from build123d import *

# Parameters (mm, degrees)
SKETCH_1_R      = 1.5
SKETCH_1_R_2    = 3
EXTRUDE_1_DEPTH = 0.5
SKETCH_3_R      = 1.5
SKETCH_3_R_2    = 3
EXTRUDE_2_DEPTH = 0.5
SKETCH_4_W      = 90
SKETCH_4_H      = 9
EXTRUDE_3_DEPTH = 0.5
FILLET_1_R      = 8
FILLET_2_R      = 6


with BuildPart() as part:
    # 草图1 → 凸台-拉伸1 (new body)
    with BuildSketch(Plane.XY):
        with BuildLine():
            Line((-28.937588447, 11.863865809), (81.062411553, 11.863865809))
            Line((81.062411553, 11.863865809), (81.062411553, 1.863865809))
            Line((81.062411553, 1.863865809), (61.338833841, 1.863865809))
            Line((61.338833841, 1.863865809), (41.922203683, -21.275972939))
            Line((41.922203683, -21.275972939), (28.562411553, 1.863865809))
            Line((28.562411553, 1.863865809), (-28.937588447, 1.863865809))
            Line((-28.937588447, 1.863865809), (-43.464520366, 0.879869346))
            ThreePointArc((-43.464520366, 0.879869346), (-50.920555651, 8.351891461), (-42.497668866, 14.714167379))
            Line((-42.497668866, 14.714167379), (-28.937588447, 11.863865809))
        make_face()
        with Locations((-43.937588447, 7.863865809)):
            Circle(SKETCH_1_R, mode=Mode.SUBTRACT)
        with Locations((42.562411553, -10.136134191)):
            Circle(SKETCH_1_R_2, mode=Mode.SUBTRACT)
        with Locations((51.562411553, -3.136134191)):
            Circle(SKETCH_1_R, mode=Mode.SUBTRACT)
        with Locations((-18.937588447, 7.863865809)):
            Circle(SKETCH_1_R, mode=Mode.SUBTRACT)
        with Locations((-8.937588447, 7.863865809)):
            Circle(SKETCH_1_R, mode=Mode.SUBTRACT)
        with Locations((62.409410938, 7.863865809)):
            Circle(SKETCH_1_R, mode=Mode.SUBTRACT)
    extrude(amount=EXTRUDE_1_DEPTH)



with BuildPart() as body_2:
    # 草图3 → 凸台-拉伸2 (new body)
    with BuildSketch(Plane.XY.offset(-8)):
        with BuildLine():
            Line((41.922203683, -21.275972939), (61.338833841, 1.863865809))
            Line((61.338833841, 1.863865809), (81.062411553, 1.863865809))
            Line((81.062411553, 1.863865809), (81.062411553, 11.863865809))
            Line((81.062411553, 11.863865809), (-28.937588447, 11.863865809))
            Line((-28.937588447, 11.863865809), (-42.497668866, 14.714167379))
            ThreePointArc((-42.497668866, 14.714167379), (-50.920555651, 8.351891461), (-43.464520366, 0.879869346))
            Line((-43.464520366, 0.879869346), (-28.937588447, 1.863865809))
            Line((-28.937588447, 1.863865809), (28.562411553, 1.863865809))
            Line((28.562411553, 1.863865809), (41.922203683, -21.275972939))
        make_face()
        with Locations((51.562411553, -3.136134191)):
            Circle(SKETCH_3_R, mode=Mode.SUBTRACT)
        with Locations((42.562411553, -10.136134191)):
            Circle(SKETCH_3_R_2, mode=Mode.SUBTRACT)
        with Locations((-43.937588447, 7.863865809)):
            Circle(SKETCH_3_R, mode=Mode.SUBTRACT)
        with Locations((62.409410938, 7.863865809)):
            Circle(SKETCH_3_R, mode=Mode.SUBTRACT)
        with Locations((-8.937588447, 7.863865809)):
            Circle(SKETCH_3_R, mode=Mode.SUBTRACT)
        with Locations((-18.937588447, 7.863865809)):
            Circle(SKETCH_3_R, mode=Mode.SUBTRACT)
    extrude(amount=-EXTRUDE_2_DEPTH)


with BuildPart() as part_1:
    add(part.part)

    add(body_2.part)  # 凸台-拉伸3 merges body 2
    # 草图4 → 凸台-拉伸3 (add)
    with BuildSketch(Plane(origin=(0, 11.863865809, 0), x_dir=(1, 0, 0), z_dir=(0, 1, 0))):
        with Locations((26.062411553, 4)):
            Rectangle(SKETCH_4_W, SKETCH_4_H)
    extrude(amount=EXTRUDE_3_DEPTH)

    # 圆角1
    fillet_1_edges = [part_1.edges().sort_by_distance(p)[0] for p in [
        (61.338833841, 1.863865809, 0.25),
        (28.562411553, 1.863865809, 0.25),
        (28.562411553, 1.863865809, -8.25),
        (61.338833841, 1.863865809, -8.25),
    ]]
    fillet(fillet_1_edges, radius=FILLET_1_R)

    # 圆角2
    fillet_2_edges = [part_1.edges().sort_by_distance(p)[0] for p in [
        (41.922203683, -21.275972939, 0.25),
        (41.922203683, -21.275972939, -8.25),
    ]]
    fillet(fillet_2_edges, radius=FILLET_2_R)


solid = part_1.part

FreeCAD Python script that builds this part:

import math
import FreeCAD as App
import Part
import Sketcher

V = App.Vector
Q = App.Units.Quantity


def edges_at(feature, points):
    """Names of the edges that pass closest to the given points."""
    edges = feature.Shape.Edges
    near = lambda p: min(range(len(edges)), key=lambda i: edges[i].distToShape(Part.Vertex(*p))[0])
    return sorted({f"Edge{near(p) + 1}" for p in points})

doc = App.newDocument("Part")
body = doc.addObject("PartDesign::Body", "Body")

sketch1 = body.newObject("Sketcher::SketchObject", "Sketch")
sketch1.AttachmentSupport = (doc.getObject("XY_Plane"), [""])
sketch1.MapMode = "FlatFace"
sketch1.addGeometry(Part.LineSegment(V(81.062412, 11.863866, 0), V(-28.937588, 11.863866, 0)), False)
sketch1.addGeometry(Part.LineSegment(V(-28.937588, 11.863866, 0), V(-42.497669, 14.714167, 0)), False)
sketch1.addGeometry(Part.ArcOfCircle(Part.Circle(V(-43.937588, 7.863866, 0), V(0, 0, 1), 7), math.radians(78.129357), math.radians(273.875068)), False)
sketch1.addGeometry(Part.LineSegment(V(-43.46452, 0.879869, 0), V(-28.937588, 1.863866, 0)), False)
sketch1.addGeometry(Part.LineSegment(V(-28.937588, 1.863866, 0), V(28.562412, 1.863866, 0)), False)
sketch1.addGeometry(Part.LineSegment(V(28.562412, 1.863866, 0), V(41.922204, -21.275973, 0)), False)
sketch1.addGeometry(Part.LineSegment(V(41.922204, -21.275973, 0), V(61.338834, 1.863866, 0)), False)
sketch1.addGeometry(Part.LineSegment(V(61.338834, 1.863866, 0), V(81.062412, 1.863866, 0)), False)
sketch1.addGeometry(Part.LineSegment(V(81.062412, 1.863866, 0), V(81.062412, 11.863866, 0)), False)
sketch1.addGeometry(Part.Circle(V(42.562412, -10.136134, 0), V(0, 0, 1), 3), False)
sketch1.addGeometry(Part.Circle(V(51.562412, -3.136134, 0), V(0, 0, 1), 1.5), False)
sketch1.addGeometry(Part.Circle(V(62.409411, 7.863866, 0), V(0, 0, 1), 1.5), False)
sketch1.addGeometry(Part.Circle(V(-8.937588, 7.863866, 0), V(0, 0, 1), 1.5), False)
sketch1.addGeometry(Part.Circle(V(-18.937588, 7.863866, 0), V(0, 0, 1), 1.5), False)
sketch1.addGeometry(Part.Circle(V(-43.937588, 7.863866, 0), V(0, 0, 1), 1.5), False)
sketch1.addConstraint(Sketcher.Constraint("Coincident", 0, 2, 1, 1))
sketch1.addConstraint(Sketcher.Constraint("Tangent", 1, 2, 2, 1))
sketch1.addConstraint(Sketcher.Constraint("Tangent", 2, 2, 3, 1))
sketch1.addConstraint(Sketcher.Constraint("Coincident", 3, 2, 4, 1))
sketch1.addConstraint(Sketcher.Constraint("Coincident", 4, 2, 5, 1))
sketch1.addConstraint(Sketcher.Constraint("Coincident", 5, 2, 6, 1))
sketch1.addConstraint(Sketcher.Constraint("Coincident", 6, 2, 7, 1))
sketch1.addConstraint(Sketcher.Constraint("Coincident", 7, 2, 8, 1))
sketch1.addConstraint(Sketcher.Constraint("Coincident", 8, 2, 0, 1))
sketch1.addConstraint(Sketcher.Constraint("Horizontal", 0))
sketch1.addConstraint(Sketcher.Constraint("Horizontal", 4))
sketch1.addConstraint(Sketcher.Constraint("Horizontal", 7))
sketch1.addConstraint(Sketcher.Constraint("Vertical", 8))
sketch1.addConstraint(Sketcher.Constraint("Coincident", 14, 3, 2, 3))
sketch1.addConstraint(Sketcher.Constraint("Equal", 10, 11))
sketch1.addConstraint(Sketcher.Constraint("Equal", 11, 12))
sketch1.addConstraint(Sketcher.Constraint("Equal", 12, 13))
sketch1.addConstraint(Sketcher.Constraint("Equal", 13, 14))
sketch1.addConstraint(Sketcher.Constraint("Horizontal", 2, 3, 11, 3))
sketch1.addConstraint(Sketcher.Constraint("Horizontal", 11, 3, 12, 3))
sketch1.addConstraint(Sketcher.Constraint("Horizontal", 12, 3, 13, 3))
sketch1.addConstraint(Sketcher.Constraint("Horizontal", 4, 2, 6, 2))
sketch1.addConstraint(Sketcher.Constraint("Vertical", 0, 2, 3, 2))
sketch1.addConstraint(Sketcher.Constraint("Diameter", 9, 6.0))
sketch1.addConstraint(Sketcher.Constraint("Diameter", 10, 3.0))
sketch1.addConstraint(Sketcher.Constraint("Radius", 2, 7.0))
sketch1.addConstraint(Sketcher.Constraint("DistanceX", 0, 2, 0, 1, 110.0))
sketch1.addConstraint(Sketcher.Constraint("DistanceY", 8, 1, 8, 2, 10.0))
sketch1.addConstraint(Sketcher.Constraint("Angle", 5, Q("-60 deg")))
sketch1.addConstraint(Sketcher.Constraint("Angle", 6, Q("50 deg")))
sketch1.addConstraint(Sketcher.Constraint("DistanceX", 4, 1, 4, 2, 57.5))
sketch1.addConstraint(Sketcher.Constraint("DistanceY", 9, 3, 2, 3, 18.0))
sketch1.addConstraint(Sketcher.Constraint("DistanceX", 9, 3, 10, 3, 9.0))
sketch1.addConstraint(Sketcher.Constraint("DistanceY", 9, 3, 10, 3, 7.0))
sketch1.addConstraint(Sketcher.Constraint("DistanceX", 2, 3, 12, 3, 35.0))
sketch1.addConstraint(Sketcher.Constraint("DistanceX", 13, 3, 12, 3, 10.0))
sketch1.addConstraint(Sketcher.Constraint("DistanceX", 0, 2, 13, 3, 10.0))
sketch1.addConstraint(Sketcher.Constraint("DistanceY", 13, 3, 0, 2, 4.0))
sketch1.addConstraint(Sketcher.Constraint("DistanceX", 4, 2, 9, 3, 14.0))
sketch1.addConstraint(Sketcher.Constraint("DistanceX", 10, 3, 11, 3, 10.846999))
sketch1.addConstraint(Sketcher.Constraint("DistanceX", 7, 1, 7, 2, 19.723578))
sketch1.addConstraint(Sketcher.Constraint("DistanceX", 2, 3, -1, 1, 43.937588))
sketch1.addConstraint(Sketcher.Constraint("DistanceY", -1, 1, 2, 2, 0.879869))
pad1 = body.newObject("PartDesign::Pad", "Pad")
pad1.Profile = sketch1
pad1.Length = 0.5
body2 = doc.addObject("PartDesign::Body", "Body001")

sketch2 = body2.newObject("Sketcher::SketchObject", "Sketch001")
sketch2.AttachmentSupport = (doc.getObject("XY_Plane001"), [""])
sketch2.MapMode = "FlatFace"
sketch2.AttachmentOffset = App.Placement(V(0, 0, -8), App.Rotation())
sketch2.addGeometry(Part.LineSegment(V(41.922204, -21.275973, 0), V(61.338834, 1.863866, 0)), False)
sketch2.addGeometry(Part.LineSegment(V(61.338834, 1.863866, 0), V(81.062412, 1.863866, 0)), False)
sketch2.addGeometry(Part.LineSegment(V(81.062412, 1.863866, 0), V(81.062412, 11.863866, 0)), False)
sketch2.addGeometry(Part.LineSegment(V(81.062412, 11.863866, 0), V(-28.937588, 11.863866, 0)), False)
sketch2.addGeometry(Part.LineSegment(V(-28.937588, 11.863866, 0), V(-42.497669, 14.714167, 0)), False)
sketch2.addGeometry(Part.ArcOfCircle(Part.Circle(V(-43.937588, 7.863866, 0), V(0, 0, 1), 7), math.radians(78.129357), math.radians(273.875068)), False)
sketch2.addGeometry(Part.LineSegment(V(-43.46452, 0.879869, 0), V(-28.937588, 1.863866, 0)), False)
sketch2.addGeometry(Part.LineSegment(V(-28.937588, 1.863866, 0), V(28.562412, 1.863866, 0)), False)
sketch2.addGeometry(Part.LineSegment(V(28.562412, 1.863866, 0), V(41.922204, -21.275973, 0)), False)
sketch2.addGeometry(Part.Circle(V(42.562412, -10.136134, 0), V(0, 0, 1), 3), False)
sketch2.addGeometry(Part.Circle(V(51.562412, -3.136134, 0), V(0, 0, 1), 1.5), False)
sketch2.addGeometry(Part.Circle(V(-43.937588, 7.863866, 0), V(0, 0, 1), 1.5), False)
sketch2.addGeometry(Part.Circle(V(-18.937588, 7.863866, 0), V(0, 0, 1), 1.5), False)
sketch2.addGeometry(Part.Circle(V(-8.937588, 7.863866, 0), V(0, 0, 1), 1.5), False)
sketch2.addGeometry(Part.Circle(V(62.409411, 7.863866, 0), V(0, 0, 1), 1.5), False)
sketch2.addConstraint(Sketcher.Constraint("Coincident", 0, 2, 1, 1))
sketch2.addConstraint(Sketcher.Constraint("Coincident", 1, 2, 2, 1))
sketch2.addConstraint(Sketcher.Constraint("Coincident", 2, 2, 3, 1))
sketch2.addConstraint(Sketcher.Constraint("Coincident", 3, 2, 4, 1))
sketch2.addConstraint(Sketcher.Constraint("Tangent", 4, 2, 5, 1))
sketch2.addConstraint(Sketcher.Constraint("Tangent", 5, 2, 6, 1))
sketch2.addConstraint(Sketcher.Constraint("Coincident", 6, 2, 7, 1))
sketch2.addConstraint(Sketcher.Constraint("Coincident", 7, 2, 8, 1))
sketch2.addConstraint(Sketcher.Constraint("Coincident", 8, 2, 0, 1))
sketch2.addConstraint(Sketcher.Constraint("Horizontal", 1))
sketch2.addConstraint(Sketcher.Constraint("Vertical", 2))
sketch2.addConstraint(Sketcher.Constraint("Horizontal", 3))
sketch2.addConstraint(Sketcher.Constraint("Horizontal", 7))
sketch2.addConstraint(Sketcher.Constraint("Coincident", 11, 3, 5, 3))
sketch2.addConstraint(Sketcher.Constraint("Equal", 10, 11))
sketch2.addConstraint(Sketcher.Constraint("Equal", 11, 12))
sketch2.addConstraint(Sketcher.Constraint("Equal", 12, 13))
sketch2.addConstraint(Sketcher.Constraint("Equal", 13, 14))
sketch2.addConstraint(Sketcher.Constraint("Horizontal", 11, 3, 12, 3))
sketch2.addConstraint(Sketcher.Constraint("Horizontal", 12, 3, 13, 3))
sketch2.addConstraint(Sketcher.Constraint("Horizontal", 13, 3, 14, 3))
sketch2.addConstraint(Sketcher.Constraint("Horizontal", 1, 2, 6, 2))
sketch2.addConstraint(Sketcher.Constraint("Vertical", 3, 2, 6, 2))
sketch2.addConstraint(Sketcher.Constraint("Diameter", 9, 6.0))
sketch2.addConstraint(Sketcher.Constraint("Diameter", 10, 3.0))
sketch2.addConstraint(Sketcher.Constraint("Radius", 5, 7.0))
sketch2.addConstraint(Sketcher.Constraint("DistanceX", 3, 2, 3, 1, 110.0))
sketch2.addConstraint(Sketcher.Constraint("DistanceY", 2, 1, 2, 2, 10.0))
sketch2.addConstraint(Sketcher.Constraint("Angle", 0, Q("50 deg")))
sketch2.addConstraint(Sketcher.Constraint("Angle", 8, Q("-60 deg")))
sketch2.addConstraint(Sketcher.Constraint("DistanceX", 7, 1, 7, 2, 57.5))
sketch2.addConstraint(Sketcher.Constraint("DistanceY", 9, 3, 5, 3, 18.0))
sketch2.addConstraint(Sketcher.Constraint("DistanceX", 9, 3, 10, 3, 9.0))
sketch2.addConstraint(Sketcher.Constraint("DistanceY", 9, 3, 10, 3, 7.0))
sketch2.addConstraint(Sketcher.Constraint("DistanceX", 5, 3, 12, 3, 25.0))
sketch2.addConstraint(Sketcher.Constraint("DistanceX", 12, 3, 13, 3, 10.0))
sketch2.addConstraint(Sketcher.Constraint("DistanceY", 0, 2, 14, 3, 6.0))
sketch2.addConstraint(Sketcher.Constraint("DistanceX", 13, 3, 1, 2, 90.0))
sketch2.addConstraint(Sketcher.Constraint("DistanceX", 7, 2, 9, 3, 14.0))
sketch2.addConstraint(Sketcher.Constraint("DistanceX", 10, 3, 14, 3, 10.846999))
sketch2.addConstraint(Sketcher.Constraint("DistanceX", 1, 1, 1, 2, 19.723578))
sketch2.addConstraint(Sketcher.Constraint("DistanceX", 5, 3, -1, 1, 43.937588))
sketch2.addConstraint(Sketcher.Constraint("DistanceY", -1, 1, 5, 2, 0.879869))
pad2 = body2.newObject("PartDesign::Pad", "Pad001")
pad2.Profile = sketch2
pad2.Length = 0.5
pad2.Reversed = True
body.AllowCompound = True
doc.recompute()

boolean = body.newObject("PartDesign::Boolean", "Boolean")
boolean.Type = "Fuse"
boolean.addObjects([body2])

sketch3 = body.newObject("Sketcher::SketchObject", "Sketch002")
sketch3.AttachmentSupport = (doc.getObject("XZ_Plane"), [""])
sketch3.MapMode = "FlatFace"
sketch3.AttachmentOffset = App.Placement(V(0, 0, -11.863866), App.Rotation())
sketch3.addGeometry(Part.LineSegment(V(-18.937588, -8.5, 0), V(-18.937588, 0.5, 0)), False)
sketch3.addGeometry(Part.LineSegment(V(-18.937588, 0.5, 0), V(71.062412, 0.5, 0)), False)
sketch3.addGeometry(Part.LineSegment(V(71.062412, 0.5, 0), V(71.062412, -8.5, 0)), False)
sketch3.addGeometry(Part.LineSegment(V(71.062412, -8.5, 0), V(-18.937588, -8.5, 0)), False)
sketch3.addConstraint(Sketcher.Constraint("Coincident", 0, 2, 1, 1))
sketch3.addConstraint(Sketcher.Constraint("Coincident", 1, 2, 2, 1))
sketch3.addConstraint(Sketcher.Constraint("Coincident", 2, 2, 3, 1))
sketch3.addConstraint(Sketcher.Constraint("Coincident", 3, 2, 0, 1))
sketch3.addConstraint(Sketcher.Constraint("Vertical", 0))
sketch3.addConstraint(Sketcher.Constraint("Horizontal", 1))
sketch3.addConstraint(Sketcher.Constraint("Vertical", 2))
sketch3.addConstraint(Sketcher.Constraint("Horizontal", 3))
sketch3.addConstraint(Sketcher.Constraint("DistanceX", 1, 1, 1, 2, 90.0))
sketch3.addConstraint(Sketcher.Constraint("DistanceY", 0, 1, 0, 2, 9.0))
sketch3.addConstraint(Sketcher.Constraint("DistanceY", -1, 1, 0, 2, 0.5))
sketch3.addConstraint(Sketcher.Constraint("DistanceX", 0, 2, -1, 1, 18.937588))
pad3 = body.newObject("PartDesign::Pad", "Pad002")
pad3.Profile = sketch3
pad3.Length = 0.5
pad3.Reversed = True
doc.recompute()

fillet = body.newObject("PartDesign::Fillet", "Fillet")
fillet.Base = (pad3, edges_at(pad3, [
    (61.339, 1.864, 0.25),
    (28.562, 1.864, 0.25),
    (28.562, 1.864, -8.25),
    (61.339, 1.864, -8.25),
]))
fillet.Radius = 8
doc.recompute()

fillet2 = body.newObject("PartDesign::Fillet", "Fillet001")
fillet2.Base = (fillet, edges_at(fillet, [(41.922, -21.276, 0.25), (41.922, -21.276, -8.25)]))
fillet2.Radius = 6

doc.recompute()
